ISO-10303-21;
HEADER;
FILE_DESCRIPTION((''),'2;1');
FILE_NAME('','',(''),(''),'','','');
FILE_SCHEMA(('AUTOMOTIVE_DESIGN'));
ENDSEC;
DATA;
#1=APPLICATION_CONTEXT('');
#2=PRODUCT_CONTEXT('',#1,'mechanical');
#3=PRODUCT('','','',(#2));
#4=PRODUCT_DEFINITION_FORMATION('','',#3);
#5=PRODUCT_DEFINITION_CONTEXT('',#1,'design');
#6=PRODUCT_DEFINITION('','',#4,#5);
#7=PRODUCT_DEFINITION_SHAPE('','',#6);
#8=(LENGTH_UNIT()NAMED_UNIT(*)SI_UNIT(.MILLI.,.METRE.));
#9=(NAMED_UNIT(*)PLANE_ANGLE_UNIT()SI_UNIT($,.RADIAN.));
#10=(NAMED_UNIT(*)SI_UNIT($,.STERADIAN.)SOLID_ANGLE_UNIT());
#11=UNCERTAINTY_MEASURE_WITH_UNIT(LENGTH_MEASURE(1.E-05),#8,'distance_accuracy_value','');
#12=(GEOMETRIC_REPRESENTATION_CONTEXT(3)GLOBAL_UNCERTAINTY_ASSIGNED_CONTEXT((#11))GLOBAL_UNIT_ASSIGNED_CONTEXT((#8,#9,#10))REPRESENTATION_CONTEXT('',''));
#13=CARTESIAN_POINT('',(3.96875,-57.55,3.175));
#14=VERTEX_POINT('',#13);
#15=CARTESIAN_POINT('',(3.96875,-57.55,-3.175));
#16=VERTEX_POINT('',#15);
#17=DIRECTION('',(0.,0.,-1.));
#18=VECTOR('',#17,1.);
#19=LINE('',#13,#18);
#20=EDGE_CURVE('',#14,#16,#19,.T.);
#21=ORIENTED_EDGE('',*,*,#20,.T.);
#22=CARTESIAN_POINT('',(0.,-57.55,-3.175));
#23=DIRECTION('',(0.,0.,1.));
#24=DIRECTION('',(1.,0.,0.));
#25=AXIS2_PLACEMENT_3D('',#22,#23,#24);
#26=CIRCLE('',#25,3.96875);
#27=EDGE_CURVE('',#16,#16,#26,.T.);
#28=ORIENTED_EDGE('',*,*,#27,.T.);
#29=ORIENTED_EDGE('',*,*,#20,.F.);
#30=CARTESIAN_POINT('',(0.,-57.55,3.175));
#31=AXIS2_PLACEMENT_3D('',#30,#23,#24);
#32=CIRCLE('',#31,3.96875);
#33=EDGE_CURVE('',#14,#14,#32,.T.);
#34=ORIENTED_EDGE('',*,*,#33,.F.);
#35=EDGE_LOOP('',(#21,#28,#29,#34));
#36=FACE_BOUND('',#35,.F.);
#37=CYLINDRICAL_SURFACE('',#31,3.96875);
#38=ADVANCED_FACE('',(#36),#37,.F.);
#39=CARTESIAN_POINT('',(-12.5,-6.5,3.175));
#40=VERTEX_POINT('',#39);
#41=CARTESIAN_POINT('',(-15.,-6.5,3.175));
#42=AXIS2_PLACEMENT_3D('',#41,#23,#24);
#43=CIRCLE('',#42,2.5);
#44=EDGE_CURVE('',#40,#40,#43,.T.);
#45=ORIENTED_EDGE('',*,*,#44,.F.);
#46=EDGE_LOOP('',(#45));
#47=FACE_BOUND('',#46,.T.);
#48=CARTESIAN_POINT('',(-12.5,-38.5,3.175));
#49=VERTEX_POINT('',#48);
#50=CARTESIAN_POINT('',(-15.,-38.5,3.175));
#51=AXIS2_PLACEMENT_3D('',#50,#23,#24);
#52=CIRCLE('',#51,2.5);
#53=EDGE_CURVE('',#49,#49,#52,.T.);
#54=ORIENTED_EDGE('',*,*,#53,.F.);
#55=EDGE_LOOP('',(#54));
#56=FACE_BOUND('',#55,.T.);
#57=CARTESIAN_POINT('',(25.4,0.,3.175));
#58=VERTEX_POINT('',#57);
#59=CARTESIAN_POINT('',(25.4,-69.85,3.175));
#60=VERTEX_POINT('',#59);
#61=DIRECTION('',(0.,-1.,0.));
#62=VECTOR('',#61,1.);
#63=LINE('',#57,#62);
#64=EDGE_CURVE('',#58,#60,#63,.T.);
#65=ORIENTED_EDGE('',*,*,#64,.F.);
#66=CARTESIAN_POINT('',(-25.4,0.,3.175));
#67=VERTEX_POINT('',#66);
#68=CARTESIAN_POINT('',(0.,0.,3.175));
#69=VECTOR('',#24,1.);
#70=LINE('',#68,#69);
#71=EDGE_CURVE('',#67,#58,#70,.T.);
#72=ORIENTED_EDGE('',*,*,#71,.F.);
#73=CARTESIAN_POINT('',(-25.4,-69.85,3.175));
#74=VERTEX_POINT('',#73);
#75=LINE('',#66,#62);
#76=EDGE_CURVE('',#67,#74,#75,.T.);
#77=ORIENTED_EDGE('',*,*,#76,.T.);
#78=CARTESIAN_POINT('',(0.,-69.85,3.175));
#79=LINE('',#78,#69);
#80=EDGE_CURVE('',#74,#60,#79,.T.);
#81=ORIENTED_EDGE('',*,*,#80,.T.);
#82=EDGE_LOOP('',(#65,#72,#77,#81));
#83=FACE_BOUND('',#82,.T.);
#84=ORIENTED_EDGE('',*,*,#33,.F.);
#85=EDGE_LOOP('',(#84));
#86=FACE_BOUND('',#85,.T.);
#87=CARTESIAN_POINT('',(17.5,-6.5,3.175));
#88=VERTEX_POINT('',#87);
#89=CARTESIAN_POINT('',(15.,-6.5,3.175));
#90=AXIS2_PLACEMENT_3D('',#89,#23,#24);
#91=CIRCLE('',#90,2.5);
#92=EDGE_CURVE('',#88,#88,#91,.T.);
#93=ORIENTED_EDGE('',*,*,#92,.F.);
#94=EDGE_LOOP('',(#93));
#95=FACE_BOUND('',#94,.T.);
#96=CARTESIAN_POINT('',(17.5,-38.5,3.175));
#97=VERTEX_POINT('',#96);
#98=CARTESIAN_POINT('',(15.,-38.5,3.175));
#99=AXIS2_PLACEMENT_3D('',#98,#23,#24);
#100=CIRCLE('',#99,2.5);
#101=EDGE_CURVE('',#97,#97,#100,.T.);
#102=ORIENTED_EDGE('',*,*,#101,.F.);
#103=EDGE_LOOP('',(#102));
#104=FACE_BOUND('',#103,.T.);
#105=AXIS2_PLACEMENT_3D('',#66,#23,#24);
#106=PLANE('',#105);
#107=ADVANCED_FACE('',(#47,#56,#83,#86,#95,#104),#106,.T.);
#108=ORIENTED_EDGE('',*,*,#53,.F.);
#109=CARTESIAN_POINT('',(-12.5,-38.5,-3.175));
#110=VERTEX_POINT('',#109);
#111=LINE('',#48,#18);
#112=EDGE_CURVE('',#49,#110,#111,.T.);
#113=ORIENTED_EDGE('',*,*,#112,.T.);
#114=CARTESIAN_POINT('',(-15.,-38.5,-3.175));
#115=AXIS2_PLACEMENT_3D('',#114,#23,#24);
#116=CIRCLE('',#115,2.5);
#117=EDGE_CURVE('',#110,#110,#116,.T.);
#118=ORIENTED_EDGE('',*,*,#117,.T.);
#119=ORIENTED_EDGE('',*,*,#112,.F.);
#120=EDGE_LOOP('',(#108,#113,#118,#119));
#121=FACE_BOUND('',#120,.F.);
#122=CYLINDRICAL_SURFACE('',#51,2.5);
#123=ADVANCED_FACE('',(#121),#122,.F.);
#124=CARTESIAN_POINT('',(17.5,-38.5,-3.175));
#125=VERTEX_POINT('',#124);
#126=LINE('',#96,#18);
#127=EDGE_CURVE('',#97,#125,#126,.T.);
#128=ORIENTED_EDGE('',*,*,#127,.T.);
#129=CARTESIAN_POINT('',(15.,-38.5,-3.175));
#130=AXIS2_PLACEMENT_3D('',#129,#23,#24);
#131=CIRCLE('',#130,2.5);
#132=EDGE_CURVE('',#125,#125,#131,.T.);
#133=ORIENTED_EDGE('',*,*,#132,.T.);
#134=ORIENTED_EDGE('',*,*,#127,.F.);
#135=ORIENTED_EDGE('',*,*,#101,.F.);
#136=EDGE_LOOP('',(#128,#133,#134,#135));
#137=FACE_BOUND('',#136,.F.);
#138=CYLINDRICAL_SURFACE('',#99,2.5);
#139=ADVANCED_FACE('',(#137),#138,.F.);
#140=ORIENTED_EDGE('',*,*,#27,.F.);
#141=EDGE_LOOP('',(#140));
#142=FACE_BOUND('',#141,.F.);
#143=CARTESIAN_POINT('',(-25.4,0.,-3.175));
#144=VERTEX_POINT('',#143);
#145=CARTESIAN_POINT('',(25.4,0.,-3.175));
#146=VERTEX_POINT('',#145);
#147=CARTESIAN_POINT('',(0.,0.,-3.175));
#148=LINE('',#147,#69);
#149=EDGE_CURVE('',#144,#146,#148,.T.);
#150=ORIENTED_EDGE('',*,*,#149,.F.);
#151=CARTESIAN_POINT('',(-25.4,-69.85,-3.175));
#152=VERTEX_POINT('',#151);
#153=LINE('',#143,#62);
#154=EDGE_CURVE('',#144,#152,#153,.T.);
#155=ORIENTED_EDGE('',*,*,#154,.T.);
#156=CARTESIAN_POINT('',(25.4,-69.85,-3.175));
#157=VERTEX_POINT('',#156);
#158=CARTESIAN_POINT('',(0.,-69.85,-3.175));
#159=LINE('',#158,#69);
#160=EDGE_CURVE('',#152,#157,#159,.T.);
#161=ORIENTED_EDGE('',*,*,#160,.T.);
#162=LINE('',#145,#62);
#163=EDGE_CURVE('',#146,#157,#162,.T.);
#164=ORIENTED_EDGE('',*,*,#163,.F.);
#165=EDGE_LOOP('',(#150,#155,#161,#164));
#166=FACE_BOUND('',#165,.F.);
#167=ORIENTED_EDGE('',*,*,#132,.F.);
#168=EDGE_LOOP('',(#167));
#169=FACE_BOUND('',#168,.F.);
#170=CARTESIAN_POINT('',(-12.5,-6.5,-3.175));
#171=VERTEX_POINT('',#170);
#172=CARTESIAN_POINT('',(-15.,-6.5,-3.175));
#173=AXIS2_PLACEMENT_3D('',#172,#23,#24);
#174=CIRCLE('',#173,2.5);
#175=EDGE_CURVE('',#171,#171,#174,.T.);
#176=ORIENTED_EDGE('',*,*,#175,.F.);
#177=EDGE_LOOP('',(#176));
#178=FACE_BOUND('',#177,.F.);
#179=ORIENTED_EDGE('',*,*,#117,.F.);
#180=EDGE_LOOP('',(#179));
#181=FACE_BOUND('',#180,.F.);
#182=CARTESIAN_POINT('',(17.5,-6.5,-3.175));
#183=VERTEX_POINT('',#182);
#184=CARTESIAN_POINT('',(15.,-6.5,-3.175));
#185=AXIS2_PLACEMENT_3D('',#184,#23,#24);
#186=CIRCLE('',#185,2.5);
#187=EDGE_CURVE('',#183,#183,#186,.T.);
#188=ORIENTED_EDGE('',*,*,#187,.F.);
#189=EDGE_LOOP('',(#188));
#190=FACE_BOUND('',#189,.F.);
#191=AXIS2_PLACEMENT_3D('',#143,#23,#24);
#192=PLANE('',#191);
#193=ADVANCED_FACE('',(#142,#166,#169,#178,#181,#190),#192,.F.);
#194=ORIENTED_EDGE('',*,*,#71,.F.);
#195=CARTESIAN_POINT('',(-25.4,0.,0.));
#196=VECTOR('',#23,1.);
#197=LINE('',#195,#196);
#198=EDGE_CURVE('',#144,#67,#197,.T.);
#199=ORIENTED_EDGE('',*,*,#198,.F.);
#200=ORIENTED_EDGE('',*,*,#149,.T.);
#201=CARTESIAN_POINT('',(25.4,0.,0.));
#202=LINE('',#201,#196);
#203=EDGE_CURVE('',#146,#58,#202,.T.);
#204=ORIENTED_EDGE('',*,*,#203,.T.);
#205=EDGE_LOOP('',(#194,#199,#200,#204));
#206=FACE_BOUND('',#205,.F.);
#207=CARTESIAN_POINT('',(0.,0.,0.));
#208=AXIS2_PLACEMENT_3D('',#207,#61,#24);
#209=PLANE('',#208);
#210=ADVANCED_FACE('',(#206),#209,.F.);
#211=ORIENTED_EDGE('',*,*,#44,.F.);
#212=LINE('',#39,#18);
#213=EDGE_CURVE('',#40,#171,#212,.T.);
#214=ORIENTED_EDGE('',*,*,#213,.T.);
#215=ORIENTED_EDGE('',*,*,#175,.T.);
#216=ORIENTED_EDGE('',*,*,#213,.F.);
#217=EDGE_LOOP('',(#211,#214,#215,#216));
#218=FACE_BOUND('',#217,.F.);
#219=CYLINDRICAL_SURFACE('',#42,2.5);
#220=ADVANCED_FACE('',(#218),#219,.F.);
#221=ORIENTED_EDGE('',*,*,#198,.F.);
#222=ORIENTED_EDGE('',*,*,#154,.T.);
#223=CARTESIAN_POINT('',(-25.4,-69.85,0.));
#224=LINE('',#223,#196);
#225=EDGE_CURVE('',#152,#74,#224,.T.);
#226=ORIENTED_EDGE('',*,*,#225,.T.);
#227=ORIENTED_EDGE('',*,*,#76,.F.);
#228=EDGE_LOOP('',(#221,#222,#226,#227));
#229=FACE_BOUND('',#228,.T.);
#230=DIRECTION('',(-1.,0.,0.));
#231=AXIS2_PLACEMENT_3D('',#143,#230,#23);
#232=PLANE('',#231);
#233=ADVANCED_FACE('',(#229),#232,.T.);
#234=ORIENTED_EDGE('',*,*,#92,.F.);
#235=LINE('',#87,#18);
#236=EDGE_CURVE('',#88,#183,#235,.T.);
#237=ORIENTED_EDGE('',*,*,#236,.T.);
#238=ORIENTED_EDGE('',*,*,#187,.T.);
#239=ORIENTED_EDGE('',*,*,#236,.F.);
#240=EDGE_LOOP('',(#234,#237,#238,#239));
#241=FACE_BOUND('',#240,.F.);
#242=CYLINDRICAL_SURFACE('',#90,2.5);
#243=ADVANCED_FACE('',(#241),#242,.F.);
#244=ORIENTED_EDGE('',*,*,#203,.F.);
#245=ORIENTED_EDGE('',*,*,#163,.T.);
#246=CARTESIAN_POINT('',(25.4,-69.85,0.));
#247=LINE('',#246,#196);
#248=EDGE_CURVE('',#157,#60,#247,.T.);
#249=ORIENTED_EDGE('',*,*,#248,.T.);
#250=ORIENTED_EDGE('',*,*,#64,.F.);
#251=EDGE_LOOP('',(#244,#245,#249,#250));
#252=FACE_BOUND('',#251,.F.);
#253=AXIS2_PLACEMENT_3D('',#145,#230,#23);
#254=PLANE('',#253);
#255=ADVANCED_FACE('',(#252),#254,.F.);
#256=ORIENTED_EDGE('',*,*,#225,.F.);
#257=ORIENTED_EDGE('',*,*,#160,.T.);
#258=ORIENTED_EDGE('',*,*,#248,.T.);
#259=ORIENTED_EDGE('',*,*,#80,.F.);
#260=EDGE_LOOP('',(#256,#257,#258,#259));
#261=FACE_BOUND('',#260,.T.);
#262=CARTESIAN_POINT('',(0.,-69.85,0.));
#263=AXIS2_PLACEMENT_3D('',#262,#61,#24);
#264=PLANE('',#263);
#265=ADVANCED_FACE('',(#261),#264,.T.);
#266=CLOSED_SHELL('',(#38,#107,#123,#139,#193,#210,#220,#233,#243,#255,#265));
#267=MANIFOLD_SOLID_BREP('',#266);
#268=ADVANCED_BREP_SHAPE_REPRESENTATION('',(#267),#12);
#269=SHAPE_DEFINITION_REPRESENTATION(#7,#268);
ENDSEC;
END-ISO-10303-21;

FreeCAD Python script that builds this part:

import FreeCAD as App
import Part
import Sketcher
Q = App.Units.Quantity

doc = App.newDocument("Part")
params = doc.addObject("Spreadsheet::Sheet", "Params")
for row, (alias, value) in enumerate([
    ("sketch1_width", "2 in"),
    ("sketch1_height", "0.25 in"),
    ("pad1_length", "2.75 in"),
    ("sketch2_diameter", "0.3125 in"),
], start=1):
    params.set(f"A{row}", alias)
    params.set(f"B{row}", "=" + value)
    params.setAlias(f"B{row}", alias)

body = doc.addObject("PartDesign::Body", "Body")

# Sketch on XZ plane
sketch1 = body.newObject("Sketcher::SketchObject", "Sketch")
sketch1.AttachmentSupport = (doc.getObject("XZ_Plane"), [""])
sketch1.MapMode = "FlatFace"
sketch1.addGeometry([
    Part.LineSegment(App.Vector(-25, 3, 0), App.Vector(-25, -3, 0)),
    Part.LineSegment(App.Vector(-25, -3, 0), App.Vector(25, -3, 0)),
    Part.LineSegment(App.Vector(25, -3, 0), App.Vector(25, 3, 0)),
    Part.LineSegment(App.Vector(25, 3, 0), App.Vector(-25, 3, 0)),
], False)
sketch1.addConstraint([
    Sketcher.Constraint("Coincident", 0, 2, 1, 1),
    Sketcher.Constraint("Coincident", 1, 2, 2, 1),
    Sketcher.Constraint("Coincident", 2, 2, 3, 1),
    Sketcher.Constraint("Coincident", 3, 2, 0, 1),
    Sketcher.Constraint("Vertical", 0),
    Sketcher.Constraint("Horizontal", 1),
    Sketcher.Constraint("Vertical", 2),
    Sketcher.Constraint("Horizontal", 3),
    Sketcher.Constraint("Symmetric", 0, 2, 2, 2, -1, 1),
    Sketcher.Constraint("DistanceX", 1, 1, 1, 2, Q("2 in")),
    Sketcher.Constraint("DistanceY", 0, 2, 0, 1, Q("0.25 in")),
])
sketch1.setExpression("Constraints[9]", "Params.sketch1_width")
sketch1.setExpression("Constraints[10]", "Params.sketch1_height")
pad1 = body.newObject("PartDesign::Pad", "Pad")
pad1.Profile = sketch1
pad1.setExpression("Length", "Params.pad1_length")

# Sketch on XY plane
sketch2 = body.newObject("Sketcher::SketchObject", "Sketch001")
sketch2.AttachmentSupport = (doc.getObject("XY_Plane"), [""])
sketch2.MapMode = "FlatFace"
sketch2.AttachmentOffset = App.Placement(App.Vector(0, 0, 0.125 * 25.4), App.Rotation())
sketch2.addGeometry([
    Part.Circle(App.Vector(-15, -38.5, 0), App.Vector(0, 0, 1), 2.5),  # 0
    Part.Circle(App.Vector(15, -38.5, 0), App.Vector(0, 0, 1), 2.5),  # 1
    Part.Circle(App.Vector(15, -6.5, 0), App.Vector(0, 0, 1), 2.5),  # 2
    Part.Circle(App.Vector(-15, -6.5, 0), App.Vector(0, 0, 1), 2.5),  # 3
    Part.Circle(App.Vector(0, -57.5, 0), App.Vector(0, 0, 1), 4),  # 4
], False)
sketch2.addConstraint([
    Sketcher.Constraint("Equal", 0, 1),
    Sketcher.Constraint("Equal", 1, 2),
    Sketcher.Constraint("Equal", 2, 3),
    Sketcher.Constraint("Symmetric", 0, 3, 1, 3, -2),
    Sketcher.Constraint("Symmetric", 2, 3, 3, 3, -2),
    Sketcher.Constraint("PointOnObject", 4, 3, -2),
    Sketcher.Constraint("Vertical", 1, 3, 2, 3),
    Sketcher.Constraint("Diameter", 4, Q("0.3125 in")),
    Sketcher.Constraint("Diameter", 0, Q("5 mm")),
    Sketcher.Constraint("DistanceY", 4, 3, 0, 3, Q("0.75 in")),
    Sketcher.Constraint("DistanceX", 0, 3, -1, 1, Q("15 mm")),
    Sketcher.Constraint("DistanceY", 0, 3, -1, 1, Q("38.5 mm")),
    Sketcher.Constraint("DistanceY", 2, 3, -1, 1, Q("6.5 mm")),
])
sketch2.setExpression("Constraints[7]", "Params.sketch2_diameter")
pocket1 = body.newObject("PartDesign::Pocket", "Pocket")
pocket1.Profile = sketch2
pocket1.Type = "ThroughAll"

doc.recompute()
